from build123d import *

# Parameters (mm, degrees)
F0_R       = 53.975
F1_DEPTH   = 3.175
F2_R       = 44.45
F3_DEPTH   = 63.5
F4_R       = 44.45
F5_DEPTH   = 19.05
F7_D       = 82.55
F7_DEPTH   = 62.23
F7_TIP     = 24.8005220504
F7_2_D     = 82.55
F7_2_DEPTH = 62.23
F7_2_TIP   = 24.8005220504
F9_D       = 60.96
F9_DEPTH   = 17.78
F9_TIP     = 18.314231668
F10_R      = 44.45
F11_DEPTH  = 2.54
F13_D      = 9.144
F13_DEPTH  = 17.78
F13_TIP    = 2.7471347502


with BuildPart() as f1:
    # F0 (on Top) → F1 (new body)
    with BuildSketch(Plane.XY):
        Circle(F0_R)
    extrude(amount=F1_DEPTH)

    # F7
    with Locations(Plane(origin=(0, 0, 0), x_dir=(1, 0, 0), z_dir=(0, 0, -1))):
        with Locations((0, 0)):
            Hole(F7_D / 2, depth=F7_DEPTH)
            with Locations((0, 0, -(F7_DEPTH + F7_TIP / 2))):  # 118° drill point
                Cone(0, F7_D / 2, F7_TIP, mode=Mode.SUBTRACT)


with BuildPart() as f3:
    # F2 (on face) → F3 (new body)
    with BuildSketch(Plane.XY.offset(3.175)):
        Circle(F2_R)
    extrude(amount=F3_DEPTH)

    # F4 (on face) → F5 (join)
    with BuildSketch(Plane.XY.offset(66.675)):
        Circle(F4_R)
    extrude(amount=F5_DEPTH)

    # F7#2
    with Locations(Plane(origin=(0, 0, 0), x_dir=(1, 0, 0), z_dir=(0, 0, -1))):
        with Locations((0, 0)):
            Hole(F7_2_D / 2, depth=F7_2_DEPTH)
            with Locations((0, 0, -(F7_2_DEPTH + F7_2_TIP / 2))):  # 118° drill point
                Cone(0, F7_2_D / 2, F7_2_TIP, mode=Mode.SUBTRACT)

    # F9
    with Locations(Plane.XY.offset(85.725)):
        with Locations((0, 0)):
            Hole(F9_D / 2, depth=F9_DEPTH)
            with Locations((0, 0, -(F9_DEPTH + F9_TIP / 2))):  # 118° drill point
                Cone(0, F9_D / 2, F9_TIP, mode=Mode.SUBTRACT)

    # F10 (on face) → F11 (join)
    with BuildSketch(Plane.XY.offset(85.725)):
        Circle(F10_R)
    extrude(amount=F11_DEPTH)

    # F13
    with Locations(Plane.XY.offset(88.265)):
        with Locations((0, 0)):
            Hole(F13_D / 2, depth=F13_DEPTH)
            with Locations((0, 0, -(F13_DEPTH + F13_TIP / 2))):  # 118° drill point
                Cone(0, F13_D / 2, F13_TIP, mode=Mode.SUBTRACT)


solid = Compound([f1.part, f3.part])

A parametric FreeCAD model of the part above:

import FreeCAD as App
import Part
import Sketcher

V = App.Vector
Q = App.Units.Quantity

doc = App.newDocument("Part")
body = doc.addObject("PartDesign::Body", "Body")

sketch1 = body.newObject("Sketcher::SketchObject", "Sketch")
sketch1.AttachmentSupport = (doc.getObject("XY_Plane"), [""])
sketch1.MapMode = "FlatFace"
sketch1.addGeometry(Part.Circle(V(0, 0, 0), V(0, 0, 1), 54), False)
sketch1.addConstraint([
    Sketcher.Constraint("Coincident", 0, 3, -1, 1),
    Sketcher.Constraint("Diameter", 0, Q("4.25 in")),
])
pad1 = body.newObject("PartDesign::Pad", "Pad")
pad1.Profile = sketch1
pad1.Length = Q("0.125 in")

sketch2 = body.newObject("Sketcher::SketchObject", "Sketch001")
sketch2.AttachmentSupport = (doc.getObject("XY_Plane"), [""])
sketch2.MapMode = "FlatFace"
sketch2.addGeometry(Part.Circle(V(0, 0, 0), V(0, 0, 1), 41), False)
sketch2.addConstraint([
    Sketcher.Constraint("Coincident", 0, 3, -1, 1),
    Sketcher.Constraint("Diameter", 0, Q("3.25 in")),
])
doc.recompute()
hole = body.newObject("PartDesign::Hole", "Hole")
hole.Profile = sketch2
hole.ThreadType = "None"
hole.Diameter = Q("3.25 in")
hole.DepthType = "Dimension"
hole.Depth = Q("2.45 in")
hole.DrillPoint = "Angled"
hole.DrillPointAngle = 118
hole.Reversed = True
body2 = doc.addObject("PartDesign::Body", "Body001")

sketch3 = body2.newObject("Sketcher::SketchObject", "Sketch002")
sketch3.AttachmentSupport = (doc.getObject("XY_Plane001"), [""])
sketch3.MapMode = "FlatFace"
sketch3.AttachmentOffset = App.Placement(V(0, 0, 0.125 * 25.4), App.Rotation())
sketch3.addGeometry(Part.Circle(V(0, 0, 0), V(0, 0, 1), 44), False)
sketch3.addConstraint([
    Sketcher.Constraint("Coincident", 0, 3, -1, 1),
    Sketcher.Constraint("Diameter", 0, Q("3.5 in")),
])
pad2 = body2.newObject("PartDesign::Pad", "Pad001")
pad2.Profile = sketch3
pad2.Length = Q("2.5 in")

sketch4 = body2.newObject("Sketcher::SketchObject", "Sketch003")
sketch4.AttachmentSupport = (doc.getObject("XY_Plane001"), [""])
sketch4.MapMode = "FlatFace"
sketch4.AttachmentOffset = App.Placement(V(0, 0, 2.625 * 25.4), App.Rotation())
sketch4.addGeometry(Part.Circle(V(0, 0, 0), V(0, 0, 1), 44), False)
sketch4.addConstraint([
    Sketcher.Constraint("Coincident", 0, 3, -1, 1),
    Sketcher.Constraint("Diameter", 0, Q("3.5 in")),
])
pad3 = body2.newObject("PartDesign::Pad", "Pad002")
pad3.Profile = sketch4
pad3.Length = Q("0.75 in")

sketch5 = body2.newObject("Sketcher::SketchObject", "Sketch004")
sketch5.AttachmentSupport = (doc.getObject("XY_Plane001"), [""])
sketch5.MapMode = "FlatFace"
sketch5.addGeometry(Part.Circle(V(0, 0, 0), V(0, 0, 1), 41), False)
sketch5.addConstraint([
    Sketcher.Constraint("Coincident", 0, 3, -1, 1),
    Sketcher.Constraint("Diameter", 0, Q("3.25 in")),
])
doc.recompute()
hole2 = body2.newObject("PartDesign::Hole", "Hole001")
hole2.Profile = sketch5
hole2.ThreadType = "None"
hole2.Diameter = Q("3.25 in")
hole2.DepthType = "Dimension"
hole2.Depth = Q("2.45 in")
hole2.DrillPoint = "Angled"
hole2.DrillPointAngle = 118
hole2.Reversed = True

sketch6 = body2.newObject("Sketcher::SketchObject", "Sketch005")
sketch6.AttachmentSupport = (doc.getObject("XY_Plane001"), [""])
sketch6.MapMode = "FlatFace"
sketch6.AttachmentOffset = App.Placement(V(0, 0, 3.375 * 25.4), App.Rotation())
sketch6.addGeometry(Part.Circle(V(0, 0, 0), V(0, 0, 1), 30), False)
sketch6.addConstraint([
    Sketcher.Constraint("Coincident", 0, 3, -1, 1),
    Sketcher.Constraint("Diameter", 0, Q("2.4 in")),
])
doc.recompute()
hole3 = body2.newObject("PartDesign::Hole", "Hole002")
hole3.Profile = sketch6
hole3.ThreadType = "None"
hole3.Diameter = Q("2.4 in")
hole3.DepthType = "Dimension"
hole3.Depth = Q("0.7 in")
hole3.DrillPoint = "Angled"
hole3.DrillPointAngle = 118

sketch7 = body2.newObject("Sketcher::SketchObject", "Sketch006")
sketch7.AttachmentSupport = (doc.getObject("XY_Plane001"), [""])
sketch7.MapMode = "FlatFace"
sketch7.AttachmentOffset = App.Placement(V(0, 0, 3.375 * 25.4), App.Rotation())
sketch7.addGeometry(Part.Circle(V(0, 0, 0), V(0, 0, 1), 44), False)
sketch7.addConstraint([
    Sketcher.Constraint("Coincident", 0, 3, -1, 1),
    Sketcher.Constraint("Diameter", 0, Q("3.5 in")),
])
pad4 = body2.newObject("PartDesign::Pad", "Pad003")
pad4.Profile = sketch7
pad4.Length = Q("0.1 in")

sketch8 = body2.newObject("Sketcher::SketchObject", "Sketch007")
sketch8.AttachmentSupport = (doc.getObject("XY_Plane001"), [""])
sketch8.MapMode = "FlatFace"
sketch8.AttachmentOffset = App.Placement(V(0, 0, 3.475 * 25.4), App.Rotation())
sketch8.addGeometry(Part.Circle(V(0, 0, 0), V(0, 0, 1), 4.6), False)
sketch8.addConstraint([
    Sketcher.Constraint("Coincident", 0, 3, -1, 1),
    Sketcher.Constraint("Diameter", 0, Q("0.36 in")),
])
doc.recompute()
hole4 = body2.newObject("PartDesign::Hole", "Hole003")
hole4.Profile = sketch8
hole4.ThreadType = "None"
hole4.Diameter = Q("0.36 in")
hole4.DepthType = "Dimension"
hole4.Depth = Q("0.7 in")
hole4.DrillPoint = "Angled"
hole4.DrillPointAngle = 118

doc.recompute()
